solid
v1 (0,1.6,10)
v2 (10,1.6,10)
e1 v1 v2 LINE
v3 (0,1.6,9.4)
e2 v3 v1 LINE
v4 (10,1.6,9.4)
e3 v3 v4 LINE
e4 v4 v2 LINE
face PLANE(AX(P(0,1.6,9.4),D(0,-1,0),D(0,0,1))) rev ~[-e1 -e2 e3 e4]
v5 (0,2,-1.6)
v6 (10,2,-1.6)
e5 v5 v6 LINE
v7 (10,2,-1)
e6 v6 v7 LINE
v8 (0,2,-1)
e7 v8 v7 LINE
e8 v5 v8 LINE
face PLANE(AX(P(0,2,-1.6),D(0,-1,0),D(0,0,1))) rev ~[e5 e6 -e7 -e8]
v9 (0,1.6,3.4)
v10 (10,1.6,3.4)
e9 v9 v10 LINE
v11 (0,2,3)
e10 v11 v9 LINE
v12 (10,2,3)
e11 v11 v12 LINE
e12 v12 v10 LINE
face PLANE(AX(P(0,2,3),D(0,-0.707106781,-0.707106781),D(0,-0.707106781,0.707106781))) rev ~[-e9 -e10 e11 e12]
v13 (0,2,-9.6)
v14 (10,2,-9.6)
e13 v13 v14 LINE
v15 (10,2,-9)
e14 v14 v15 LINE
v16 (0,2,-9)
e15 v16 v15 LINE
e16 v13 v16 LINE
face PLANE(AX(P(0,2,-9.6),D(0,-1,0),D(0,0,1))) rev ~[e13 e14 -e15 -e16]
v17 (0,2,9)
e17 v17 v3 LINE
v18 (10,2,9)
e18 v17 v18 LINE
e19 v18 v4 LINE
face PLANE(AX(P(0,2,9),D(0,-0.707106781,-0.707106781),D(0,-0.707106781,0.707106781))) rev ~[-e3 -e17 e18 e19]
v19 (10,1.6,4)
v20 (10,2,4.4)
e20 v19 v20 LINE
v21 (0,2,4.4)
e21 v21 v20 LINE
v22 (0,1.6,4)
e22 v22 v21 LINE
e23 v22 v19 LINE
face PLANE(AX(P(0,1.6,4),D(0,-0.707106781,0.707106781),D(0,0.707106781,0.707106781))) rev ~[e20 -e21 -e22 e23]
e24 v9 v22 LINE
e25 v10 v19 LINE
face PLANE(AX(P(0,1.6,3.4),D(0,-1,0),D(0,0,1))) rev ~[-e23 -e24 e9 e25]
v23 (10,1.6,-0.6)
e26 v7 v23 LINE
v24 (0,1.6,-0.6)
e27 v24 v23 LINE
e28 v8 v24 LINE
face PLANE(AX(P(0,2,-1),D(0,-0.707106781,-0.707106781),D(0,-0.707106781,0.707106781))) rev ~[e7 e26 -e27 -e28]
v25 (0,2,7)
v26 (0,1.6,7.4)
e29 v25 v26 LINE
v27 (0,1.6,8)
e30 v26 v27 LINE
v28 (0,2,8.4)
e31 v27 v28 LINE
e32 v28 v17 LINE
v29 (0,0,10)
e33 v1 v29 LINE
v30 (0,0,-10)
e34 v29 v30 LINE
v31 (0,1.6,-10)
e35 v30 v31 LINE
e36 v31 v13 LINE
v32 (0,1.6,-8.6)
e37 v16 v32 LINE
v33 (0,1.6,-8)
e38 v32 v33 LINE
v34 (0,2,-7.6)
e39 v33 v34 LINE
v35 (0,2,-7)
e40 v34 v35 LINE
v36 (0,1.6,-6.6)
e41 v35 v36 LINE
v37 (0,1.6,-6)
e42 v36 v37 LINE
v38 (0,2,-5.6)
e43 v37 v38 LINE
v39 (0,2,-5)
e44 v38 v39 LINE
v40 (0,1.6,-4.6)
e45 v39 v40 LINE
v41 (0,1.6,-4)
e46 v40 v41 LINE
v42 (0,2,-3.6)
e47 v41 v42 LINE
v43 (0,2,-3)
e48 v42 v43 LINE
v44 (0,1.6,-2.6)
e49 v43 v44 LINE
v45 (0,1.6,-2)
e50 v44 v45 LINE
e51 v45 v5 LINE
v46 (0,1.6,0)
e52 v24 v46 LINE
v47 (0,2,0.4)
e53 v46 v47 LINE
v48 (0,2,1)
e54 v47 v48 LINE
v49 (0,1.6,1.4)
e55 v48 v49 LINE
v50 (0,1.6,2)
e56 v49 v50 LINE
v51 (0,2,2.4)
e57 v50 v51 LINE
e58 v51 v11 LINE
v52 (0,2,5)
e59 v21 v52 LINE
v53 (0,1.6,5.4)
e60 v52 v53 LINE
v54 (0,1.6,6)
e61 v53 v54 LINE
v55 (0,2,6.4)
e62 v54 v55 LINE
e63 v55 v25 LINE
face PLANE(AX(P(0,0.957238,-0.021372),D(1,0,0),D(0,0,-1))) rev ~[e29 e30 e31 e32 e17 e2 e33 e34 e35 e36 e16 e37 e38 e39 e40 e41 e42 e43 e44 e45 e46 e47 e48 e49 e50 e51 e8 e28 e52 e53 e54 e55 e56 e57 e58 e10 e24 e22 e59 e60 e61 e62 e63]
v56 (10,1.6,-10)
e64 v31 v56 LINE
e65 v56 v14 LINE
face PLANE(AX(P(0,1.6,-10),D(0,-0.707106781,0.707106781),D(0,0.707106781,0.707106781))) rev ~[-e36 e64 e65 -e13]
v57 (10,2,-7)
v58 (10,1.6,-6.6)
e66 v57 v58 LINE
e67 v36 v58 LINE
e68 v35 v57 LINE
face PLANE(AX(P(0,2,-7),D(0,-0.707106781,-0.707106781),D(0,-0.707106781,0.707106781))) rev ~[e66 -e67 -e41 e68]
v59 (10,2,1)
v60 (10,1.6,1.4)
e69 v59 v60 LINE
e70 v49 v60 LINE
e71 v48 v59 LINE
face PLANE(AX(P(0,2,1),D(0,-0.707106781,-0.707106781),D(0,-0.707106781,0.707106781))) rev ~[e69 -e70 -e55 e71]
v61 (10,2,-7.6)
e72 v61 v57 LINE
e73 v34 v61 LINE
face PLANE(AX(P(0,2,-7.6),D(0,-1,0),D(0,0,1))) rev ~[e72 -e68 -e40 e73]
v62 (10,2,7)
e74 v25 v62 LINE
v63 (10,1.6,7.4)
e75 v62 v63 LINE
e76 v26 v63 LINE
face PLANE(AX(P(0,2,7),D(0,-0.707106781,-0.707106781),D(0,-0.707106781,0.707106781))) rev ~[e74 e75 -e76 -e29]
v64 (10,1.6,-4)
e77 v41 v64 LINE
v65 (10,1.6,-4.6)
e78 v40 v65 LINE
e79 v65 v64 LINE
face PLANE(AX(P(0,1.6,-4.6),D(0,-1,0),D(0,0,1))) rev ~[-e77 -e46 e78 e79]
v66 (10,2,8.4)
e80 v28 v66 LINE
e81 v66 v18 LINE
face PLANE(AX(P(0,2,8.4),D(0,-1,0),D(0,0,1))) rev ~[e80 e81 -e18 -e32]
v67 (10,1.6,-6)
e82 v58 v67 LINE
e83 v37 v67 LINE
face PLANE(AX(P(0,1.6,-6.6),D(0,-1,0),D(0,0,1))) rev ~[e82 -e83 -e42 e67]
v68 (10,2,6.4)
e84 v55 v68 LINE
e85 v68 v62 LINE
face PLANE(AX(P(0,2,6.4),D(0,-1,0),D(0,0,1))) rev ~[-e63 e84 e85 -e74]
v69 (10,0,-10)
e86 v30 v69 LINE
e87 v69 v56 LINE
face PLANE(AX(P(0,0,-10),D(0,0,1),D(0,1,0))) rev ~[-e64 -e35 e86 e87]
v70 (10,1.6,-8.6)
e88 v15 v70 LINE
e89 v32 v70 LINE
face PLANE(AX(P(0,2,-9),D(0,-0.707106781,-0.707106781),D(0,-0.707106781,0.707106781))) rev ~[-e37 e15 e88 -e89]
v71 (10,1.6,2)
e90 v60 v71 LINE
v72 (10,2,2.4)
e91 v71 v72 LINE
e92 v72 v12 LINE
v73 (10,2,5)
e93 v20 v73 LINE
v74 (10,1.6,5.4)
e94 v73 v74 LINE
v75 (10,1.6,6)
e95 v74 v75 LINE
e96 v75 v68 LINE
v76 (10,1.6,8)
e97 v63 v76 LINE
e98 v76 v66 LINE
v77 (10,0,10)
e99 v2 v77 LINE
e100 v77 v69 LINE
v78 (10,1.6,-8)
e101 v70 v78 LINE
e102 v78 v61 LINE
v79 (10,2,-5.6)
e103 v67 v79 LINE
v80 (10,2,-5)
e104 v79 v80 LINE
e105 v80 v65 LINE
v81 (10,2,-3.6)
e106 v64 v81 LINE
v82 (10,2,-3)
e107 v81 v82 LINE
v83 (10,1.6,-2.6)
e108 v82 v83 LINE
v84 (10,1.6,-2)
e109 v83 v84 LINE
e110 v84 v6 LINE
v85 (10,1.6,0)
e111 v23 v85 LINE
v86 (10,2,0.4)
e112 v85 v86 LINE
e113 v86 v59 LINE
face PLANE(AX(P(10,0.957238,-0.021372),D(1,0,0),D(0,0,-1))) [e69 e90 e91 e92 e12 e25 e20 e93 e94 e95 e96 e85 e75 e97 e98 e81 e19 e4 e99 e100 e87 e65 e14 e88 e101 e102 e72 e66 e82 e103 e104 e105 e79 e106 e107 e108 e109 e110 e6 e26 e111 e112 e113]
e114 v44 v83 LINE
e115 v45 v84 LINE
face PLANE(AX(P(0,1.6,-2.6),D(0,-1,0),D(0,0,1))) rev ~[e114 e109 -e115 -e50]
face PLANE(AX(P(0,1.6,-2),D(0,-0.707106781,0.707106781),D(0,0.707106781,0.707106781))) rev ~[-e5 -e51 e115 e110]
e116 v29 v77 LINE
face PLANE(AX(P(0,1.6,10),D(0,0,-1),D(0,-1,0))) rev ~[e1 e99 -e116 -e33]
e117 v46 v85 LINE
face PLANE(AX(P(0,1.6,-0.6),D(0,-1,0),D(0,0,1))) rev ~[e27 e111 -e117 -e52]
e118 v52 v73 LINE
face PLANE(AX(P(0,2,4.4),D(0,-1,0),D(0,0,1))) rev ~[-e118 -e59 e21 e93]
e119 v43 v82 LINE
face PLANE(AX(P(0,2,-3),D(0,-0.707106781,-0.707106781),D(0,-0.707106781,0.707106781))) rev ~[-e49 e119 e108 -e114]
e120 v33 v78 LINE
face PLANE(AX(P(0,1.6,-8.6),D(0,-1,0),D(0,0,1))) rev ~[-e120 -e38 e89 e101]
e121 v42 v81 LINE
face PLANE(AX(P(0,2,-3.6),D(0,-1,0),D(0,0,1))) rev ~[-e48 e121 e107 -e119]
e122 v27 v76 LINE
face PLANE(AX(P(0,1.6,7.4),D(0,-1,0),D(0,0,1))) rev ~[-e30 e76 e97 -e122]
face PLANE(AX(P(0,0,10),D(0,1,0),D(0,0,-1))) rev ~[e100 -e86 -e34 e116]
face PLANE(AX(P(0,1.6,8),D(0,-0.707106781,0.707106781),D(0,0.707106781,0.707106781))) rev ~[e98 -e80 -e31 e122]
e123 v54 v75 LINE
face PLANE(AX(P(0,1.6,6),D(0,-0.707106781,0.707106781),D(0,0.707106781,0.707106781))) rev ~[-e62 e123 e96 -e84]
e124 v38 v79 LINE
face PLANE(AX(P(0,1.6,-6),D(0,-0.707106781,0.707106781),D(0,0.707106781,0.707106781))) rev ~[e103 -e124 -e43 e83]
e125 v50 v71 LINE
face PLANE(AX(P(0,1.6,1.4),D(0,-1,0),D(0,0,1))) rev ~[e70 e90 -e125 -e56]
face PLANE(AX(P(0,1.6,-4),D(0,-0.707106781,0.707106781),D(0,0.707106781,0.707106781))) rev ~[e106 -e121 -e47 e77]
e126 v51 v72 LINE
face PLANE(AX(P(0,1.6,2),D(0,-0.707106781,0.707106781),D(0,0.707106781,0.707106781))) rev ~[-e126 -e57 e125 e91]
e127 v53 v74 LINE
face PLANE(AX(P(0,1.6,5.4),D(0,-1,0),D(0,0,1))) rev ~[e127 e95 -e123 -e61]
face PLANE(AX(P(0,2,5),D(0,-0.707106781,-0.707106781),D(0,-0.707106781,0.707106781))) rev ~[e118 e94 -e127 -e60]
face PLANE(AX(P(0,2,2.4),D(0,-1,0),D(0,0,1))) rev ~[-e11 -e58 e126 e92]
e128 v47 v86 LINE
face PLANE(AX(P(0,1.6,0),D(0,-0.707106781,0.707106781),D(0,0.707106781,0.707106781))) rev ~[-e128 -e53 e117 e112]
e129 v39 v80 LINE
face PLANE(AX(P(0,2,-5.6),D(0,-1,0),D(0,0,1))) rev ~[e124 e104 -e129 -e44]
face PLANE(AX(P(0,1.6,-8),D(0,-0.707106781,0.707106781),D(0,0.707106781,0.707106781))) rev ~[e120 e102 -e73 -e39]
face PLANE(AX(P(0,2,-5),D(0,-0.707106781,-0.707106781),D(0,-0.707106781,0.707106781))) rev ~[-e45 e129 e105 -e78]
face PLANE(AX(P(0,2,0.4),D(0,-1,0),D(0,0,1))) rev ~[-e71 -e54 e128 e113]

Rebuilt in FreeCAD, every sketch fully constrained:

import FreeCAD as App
import Part
import Sketcher
Q = App.Units.Quantity


def add_polygon(sketch, points):
    """Adds a closed chain of lines whose ends are joined by coincident constraints."""
    first, n = sketch.GeometryCount, len(points)
    for a, b in zip(points, points[1:] + points[:1]):
        sketch.addGeometry(Part.LineSegment(App.Vector(*a, 0), App.Vector(*b, 0)), False)
    for i in range(n):
        sketch.addConstraint(Sketcher.Constraint("Coincident", first + i, 2, first + (i + 1) % n, 1))

doc = App.newDocument("Part")
body = doc.addObject("PartDesign::Body", "Body")

sketch1 = body.newObject("Sketcher::SketchObject", "Sketch")
sketch1.AttachmentSupport = (doc.getObject("YZ_Plane"), [""])
sketch1.MapMode = "FlatFace"
add_polygon(sketch1, [(0, 10), (0, -10), (1.6, -10), (2, -9.6), (2, -9), (1.6, -8.6), (1.6, -8), (2, -7.6), (2, -7), (1.6, -6.6), (1.6, -6), (2, -5.6), (2, -5), (1.6, -4.6), (1.6, -4), (2, -3.6), (2, -3), (1.6, -2.6), (1.6, -2), (2, -1.6), (2, -1), (1.6, -0.6), (1.6, 0), (2, 0.4), (2, 1), (1.6, 1.4), (1.6, 2), (2, 2.4), (2, 3), (1.6, 3.4), (1.6, 4), (2, 4.4), (2, 5), (1.6, 5.4), (1.6, 6), (2, 6.4), (2, 7), (1.6, 7.4), (1.6, 8), (2, 8.4), (2, 9), (1.6, 9.4), (1.6, 10)])
sketch1.addConstraint([
    Sketcher.Constraint("Vertical", 0),
    Sketcher.Constraint("Horizontal", 1),
    Sketcher.Constraint("Vertical", 3),
    Sketcher.Constraint("Vertical", 5),
    Sketcher.Constraint("Vertical", 7),
    Sketcher.Constraint("Vertical", 9),
    Sketcher.Constraint("Vertical", 11),
    Sketcher.Constraint("Vertical", 13),
    Sketcher.Constraint("Vertical", 15),
    Sketcher.Constraint("Vertical", 17),
    Sketcher.Constraint("Vertical", 19),
    Sketcher.Constraint("Vertical", 21),
    Sketcher.Constraint("Vertical", 23),
    Sketcher.Constraint("Vertical", 25),
    Sketcher.Constraint("Vertical", 27),
    Sketcher.Constraint("Vertical", 29),
    Sketcher.Constraint("Vertical", 31),
    Sketcher.Constraint("Vertical", 33),
    Sketcher.Constraint("Vertical", 35),
    Sketcher.Constraint("Vertical", 37),
    Sketcher.Constraint("Vertical", 39),
    Sketcher.Constraint("Vertical", 41),
    Sketcher.Constraint("Horizontal", 42),
    Sketcher.Constraint("Symmetric", 0, 2, 42, 2, -1, 1),
    Sketcher.Constraint("Symmetric", 19, 2, 23, 2, -1),
    Sketcher.Constraint("Symmetric", 17, 2, 25, 2, -1),
    Sketcher.Constraint("Symmetric", 15, 2, 27, 2, -1),
    Sketcher.Constraint("Symmetric", 13, 2, 29, 2, -1),
    Sketcher.Constraint("Symmetric", 11, 2, 31, 2, -1),
    Sketcher.Constraint("Symmetric", 9, 2, 33, 2, -1),
    Sketcher.Constraint("Symmetric", 7, 2, 35, 2, -1),
    Sketcher.Constraint("Symmetric", 5, 2, 37, 2, -1),
    Sketcher.Constraint("Symmetric", 3, 2, 39, 2, -1),
    Sketcher.Constraint("PointOnObject", 21, 2, -1),
    Sketcher.Constraint("Perpendicular", 2, 4),
    Sketcher.Constraint("Perpendicular", 4, 6),
    Sketcher.Constraint("Perpendicular", 6, 8),
    Sketcher.Constraint("Perpendicular", 8, 10),
    Sketcher.Constraint("Perpendicular", 10, 12),
    Sketcher.Constraint("Perpendicular", 12, 14),
    Sketcher.Constraint("Perpendicular", 14, 16),
    Sketcher.Constraint("Perpendicular", 16, 18),
    Sketcher.Constraint("Perpendicular", 18, 20),
    Sketcher.Constraint("Perpendicular", 20, 22),
    Sketcher.Constraint("Perpendicular", 22, 24),
    Sketcher.Constraint("Perpendicular", 24, 26),
    Sketcher.Constraint("Perpendicular", 26, 28),
    Sketcher.Constraint("Perpendicular", 28, 30),
    Sketcher.Constraint("Perpendicular", 30, 32),
    Sketcher.Constraint("Perpendicular", 32, 34),
    Sketcher.Constraint("Perpendicular", 34, 36),
    Sketcher.Constraint("Perpendicular", 36, 38),
    Sketcher.Constraint("Perpendicular", 38, 40),
    Sketcher.Constraint("Vertical", 1, 2, 4, 2),
    Sketcher.Constraint("Vertical", 3, 2, 6, 2),
    Sketcher.Constraint("Vertical", 5, 2, 8, 2),
    Sketcher.Constraint("Vertical", 7, 2, 10, 2),
    Sketcher.Constraint("Vertical", 9, 2, 12, 2),
    Sketcher.Constraint("Vertical", 11, 2, 14, 2),
    Sketcher.Constraint("Vertical", 13, 2, 16, 2),
    Sketcher.Constraint("Vertical", 15, 2, 18, 2),
    Sketcher.Constraint("Vertical", 17, 2, 20, 2),
    Sketcher.Constraint("Vertical", 37, 2, 40, 2),
    Sketcher.Constraint("Equal", 3, 5),
    Sketcher.Constraint("Equal", 5, 7),
    Sketcher.Constraint("Equal", 7, 9),
    Sketcher.Constraint("Equal", 9, 11),
    Sketcher.Constraint("Equal", 11, 13),
    Sketcher.Constraint("Equal", 13, 15),
    Sketcher.Constraint("Equal", 15, 17),
    Sketcher.Constraint("Equal", 17, 19),
    Sketcher.Constraint("Equal", 19, 21),
    Sketcher.Constraint("Equal", 21, 23),
    Sketcher.Constraint("DistanceY", 0, 2, 0, 1, Q("20 mm")),
    Sketcher.Constraint("DistanceX", 1, 1, 1, 2, Q("1.6 mm")),
    Sketcher.Constraint("DistanceY", 3, 1, 3, 2, Q("0.6 mm")),
])
pad1 = body.newObject("PartDesign::Pad", "Pad")
pad1.Profile = sketch1
pad1.Length = 10

doc.recompute()
